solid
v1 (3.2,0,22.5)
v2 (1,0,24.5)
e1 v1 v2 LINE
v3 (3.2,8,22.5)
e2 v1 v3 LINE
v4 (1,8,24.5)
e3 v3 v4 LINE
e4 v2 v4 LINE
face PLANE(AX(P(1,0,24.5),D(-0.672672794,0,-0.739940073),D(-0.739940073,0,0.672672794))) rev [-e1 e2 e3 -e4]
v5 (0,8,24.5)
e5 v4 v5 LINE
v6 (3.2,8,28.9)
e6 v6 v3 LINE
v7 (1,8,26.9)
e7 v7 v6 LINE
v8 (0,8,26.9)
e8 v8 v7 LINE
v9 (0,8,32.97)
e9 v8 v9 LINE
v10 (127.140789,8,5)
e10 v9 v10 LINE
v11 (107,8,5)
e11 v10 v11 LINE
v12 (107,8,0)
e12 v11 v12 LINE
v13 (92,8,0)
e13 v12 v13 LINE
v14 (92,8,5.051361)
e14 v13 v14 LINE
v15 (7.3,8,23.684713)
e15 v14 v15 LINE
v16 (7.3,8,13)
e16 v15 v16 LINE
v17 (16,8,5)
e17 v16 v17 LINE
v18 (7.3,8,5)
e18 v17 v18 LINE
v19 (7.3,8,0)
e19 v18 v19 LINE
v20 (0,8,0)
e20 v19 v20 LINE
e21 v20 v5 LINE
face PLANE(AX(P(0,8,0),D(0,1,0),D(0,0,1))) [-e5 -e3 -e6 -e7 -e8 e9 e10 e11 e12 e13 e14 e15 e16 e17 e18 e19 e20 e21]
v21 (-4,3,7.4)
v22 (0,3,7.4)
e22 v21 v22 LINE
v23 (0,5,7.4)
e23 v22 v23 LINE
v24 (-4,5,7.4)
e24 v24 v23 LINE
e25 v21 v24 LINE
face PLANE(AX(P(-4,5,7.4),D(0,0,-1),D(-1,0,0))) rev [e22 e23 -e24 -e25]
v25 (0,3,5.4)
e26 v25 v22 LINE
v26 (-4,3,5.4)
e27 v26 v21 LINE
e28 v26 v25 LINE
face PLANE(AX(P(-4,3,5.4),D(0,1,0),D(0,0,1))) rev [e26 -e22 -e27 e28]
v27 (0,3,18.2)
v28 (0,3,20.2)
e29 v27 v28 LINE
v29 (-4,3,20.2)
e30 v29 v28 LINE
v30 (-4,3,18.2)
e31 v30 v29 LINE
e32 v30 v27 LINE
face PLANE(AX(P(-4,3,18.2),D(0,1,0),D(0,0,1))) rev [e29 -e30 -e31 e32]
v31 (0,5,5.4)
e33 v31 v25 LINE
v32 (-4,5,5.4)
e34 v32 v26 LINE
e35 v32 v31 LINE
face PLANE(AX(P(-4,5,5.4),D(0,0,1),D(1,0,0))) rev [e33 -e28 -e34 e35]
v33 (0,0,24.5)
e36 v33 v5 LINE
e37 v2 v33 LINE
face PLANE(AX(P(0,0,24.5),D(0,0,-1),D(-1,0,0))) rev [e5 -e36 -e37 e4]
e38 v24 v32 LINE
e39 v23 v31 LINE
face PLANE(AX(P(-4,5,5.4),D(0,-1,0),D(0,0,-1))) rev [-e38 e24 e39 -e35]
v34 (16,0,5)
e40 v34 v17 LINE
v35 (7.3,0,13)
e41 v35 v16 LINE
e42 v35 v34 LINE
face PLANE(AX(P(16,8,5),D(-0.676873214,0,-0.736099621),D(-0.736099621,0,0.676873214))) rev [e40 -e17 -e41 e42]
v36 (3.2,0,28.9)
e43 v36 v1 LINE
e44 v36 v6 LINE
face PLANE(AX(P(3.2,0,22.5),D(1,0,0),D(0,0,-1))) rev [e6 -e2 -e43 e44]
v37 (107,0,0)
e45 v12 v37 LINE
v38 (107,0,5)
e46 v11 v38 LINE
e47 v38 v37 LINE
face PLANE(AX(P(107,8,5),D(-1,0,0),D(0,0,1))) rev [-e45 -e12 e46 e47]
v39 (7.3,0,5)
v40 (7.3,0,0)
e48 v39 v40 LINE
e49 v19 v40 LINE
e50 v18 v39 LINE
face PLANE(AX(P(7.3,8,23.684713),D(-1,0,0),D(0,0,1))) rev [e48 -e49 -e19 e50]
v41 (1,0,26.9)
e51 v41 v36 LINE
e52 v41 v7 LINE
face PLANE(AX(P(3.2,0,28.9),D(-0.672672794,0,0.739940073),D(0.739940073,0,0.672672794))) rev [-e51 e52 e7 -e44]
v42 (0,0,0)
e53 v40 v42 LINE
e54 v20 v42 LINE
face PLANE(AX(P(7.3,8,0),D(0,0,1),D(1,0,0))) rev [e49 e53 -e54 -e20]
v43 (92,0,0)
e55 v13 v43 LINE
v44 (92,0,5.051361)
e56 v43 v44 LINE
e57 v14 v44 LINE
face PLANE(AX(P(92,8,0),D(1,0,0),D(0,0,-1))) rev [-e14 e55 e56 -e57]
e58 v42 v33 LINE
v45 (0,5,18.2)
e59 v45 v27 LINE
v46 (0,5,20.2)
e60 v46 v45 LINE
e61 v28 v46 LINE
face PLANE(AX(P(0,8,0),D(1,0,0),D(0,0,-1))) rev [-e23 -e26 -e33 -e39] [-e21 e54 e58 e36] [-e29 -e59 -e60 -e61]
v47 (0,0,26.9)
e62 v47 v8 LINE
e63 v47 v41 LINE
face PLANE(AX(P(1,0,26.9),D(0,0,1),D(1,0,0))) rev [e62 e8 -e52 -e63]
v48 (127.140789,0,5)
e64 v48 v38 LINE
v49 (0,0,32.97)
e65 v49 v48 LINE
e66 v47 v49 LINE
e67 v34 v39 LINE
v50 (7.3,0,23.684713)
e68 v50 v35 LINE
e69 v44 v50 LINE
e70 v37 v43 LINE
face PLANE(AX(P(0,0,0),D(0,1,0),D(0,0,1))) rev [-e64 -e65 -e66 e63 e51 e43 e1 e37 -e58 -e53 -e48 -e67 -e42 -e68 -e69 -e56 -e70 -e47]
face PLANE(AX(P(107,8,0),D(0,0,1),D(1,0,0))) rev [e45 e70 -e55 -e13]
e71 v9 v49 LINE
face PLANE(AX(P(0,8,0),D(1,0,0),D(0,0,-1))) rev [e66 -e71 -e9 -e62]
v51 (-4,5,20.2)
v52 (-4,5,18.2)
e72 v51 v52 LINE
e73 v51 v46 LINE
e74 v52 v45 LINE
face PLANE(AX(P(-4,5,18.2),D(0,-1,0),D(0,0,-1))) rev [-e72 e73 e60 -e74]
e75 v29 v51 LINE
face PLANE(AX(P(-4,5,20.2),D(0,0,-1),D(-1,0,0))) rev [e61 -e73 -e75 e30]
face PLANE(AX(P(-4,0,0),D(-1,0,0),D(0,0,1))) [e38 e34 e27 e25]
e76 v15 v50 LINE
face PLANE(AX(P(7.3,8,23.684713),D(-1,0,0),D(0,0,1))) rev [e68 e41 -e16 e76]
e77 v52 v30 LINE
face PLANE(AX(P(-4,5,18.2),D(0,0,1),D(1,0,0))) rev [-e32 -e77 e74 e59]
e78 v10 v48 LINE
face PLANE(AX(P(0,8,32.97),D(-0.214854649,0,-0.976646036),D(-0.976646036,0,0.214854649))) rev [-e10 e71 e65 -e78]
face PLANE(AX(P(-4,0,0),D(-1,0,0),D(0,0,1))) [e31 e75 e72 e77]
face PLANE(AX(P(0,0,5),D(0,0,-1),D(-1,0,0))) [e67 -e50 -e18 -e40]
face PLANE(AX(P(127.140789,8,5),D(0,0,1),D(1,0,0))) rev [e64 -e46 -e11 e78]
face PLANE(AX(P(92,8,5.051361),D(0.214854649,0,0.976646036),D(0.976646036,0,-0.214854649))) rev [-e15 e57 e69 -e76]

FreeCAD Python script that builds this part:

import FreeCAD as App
import Part
import Sketcher
Q = App.Units.Quantity

doc = App.newDocument("Part")
body = doc.addObject("PartDesign::Body", "Body")

sketch1 = doc.addObject("Sketcher::SketchObject", "Sketch")
body.addObject(sketch1)
sketch1.AttachmentSupport = (doc.XZ_Plane, [""])
sketch1.MapMode = "FlatFace"
sketch1.addGeometry([
    Part.LineSegment(App.Vector(0, 0, 0), App.Vector(0, 33, 0)),
    Part.LineSegment(App.Vector(0, 33, 0), App.Vector(127, 5, 0)),
    Part.LineSegment(App.Vector(127, 5, 0), App.Vector(107, 5, 0)),
    Part.LineSegment(App.Vector(107, 5, 0), App.Vector(107, 0, 0)),
    Part.LineSegment(App.Vector(107, 0, 0), App.Vector(92, 0, 0)),
    Part.LineSegment(App.Vector(92, 0, 0), App.Vector(92, 5, 0)),
    Part.LineSegment(App.Vector(92, 5, 0), App.Vector(7, 24, 0)),
    Part.LineSegment(App.Vector(7, 24, 0), App.Vector(7, 0, 0)),
    Part.LineSegment(App.Vector(7, 0, 0), App.Vector(0, 0, 0)),
], False)
sketch1.addConstraint([
    Sketcher.Constraint("Coincident", 0, 2, 1, 1),
    Sketcher.Constraint("Coincident", 1, 2, 2, 1),
    Sketcher.Constraint("Coincident", 2, 2, 3, 1),
    Sketcher.Constraint("Coincident", 3, 2, 4, 1),
    Sketcher.Constraint("Coincident", 4, 2, 5, 1),
    Sketcher.Constraint("Coincident", 5, 2, 6, 1),
    Sketcher.Constraint("Coincident", 6, 2, 7, 1),
    Sketcher.Constraint("Coincident", 7, 2, 8, 1),
    Sketcher.Constraint("Coincident", 8, 2, 0, 1),
    Sketcher.Constraint("Vertical", 0),
    Sketcher.Constraint("Horizontal", 2),
    Sketcher.Constraint("Vertical", 3),
    Sketcher.Constraint("Horizontal", 4),
    Sketcher.Constraint("Vertical", 5),
    Sketcher.Constraint("Vertical", 7),
    Sketcher.Constraint("Horizontal", 8),
    Sketcher.Constraint("Coincident", 8, 2, -1, 1),
    Sketcher.Constraint("PointOnObject", 3, 2, -1),
    Sketcher.Constraint("Parallel", 1, 6),
    Sketcher.Constraint("DistanceX", 4, 2, 4, 1, Q("15 mm")),
    Sketcher.Constraint("DistanceY", 3, 2, 3, 1, Q("5 mm")),
    Sketcher.Constraint("DistanceX", 8, 2, 8, 1, Q("7.3 mm")),
    Sketcher.Constraint("DistanceX", -1, 1, 2, 2, Q("107 mm")),
    Sketcher.Constraint("DistanceY", 0, 1, 0, 2, Q("32.97 mm")),
    Sketcher.Constraint("DistanceX", 2, 2, 2, 1, Q("20.140789 mm")),
    Sketcher.Constraint("DistanceY", 5, 1, 5, 2, Q("5.051361 mm")),
])
pad1 = doc.addObject("PartDesign::Pad", "Pad")
body.addObject(pad1)
pad1.Profile = sketch1
pad1.Length = 8
pad1.Reversed = True

sketch2 = doc.addObject("Sketcher::SketchObject", "Sketch001")
body.addObject(sketch2)
sketch2.AttachmentSupport = (doc.XZ_Plane, [""])
sketch2.MapMode = "FlatFace"
sketch2.AttachmentOffset = App.Placement(App.Vector(0, 0, -8), App.Rotation())
sketch2.addGeometry([
    Part.LineSegment(App.Vector(1, 24.5, 0), App.Vector(0, 24.5, 0)),
    Part.LineSegment(App.Vector(0, 24.5, 0), App.Vector(0, 26.9, 0)),
    Part.LineSegment(App.Vector(0, 26.9, 0), App.Vector(1, 26.9, 0)),
    Part.LineSegment(App.Vector(1, 26.9, 0), App.Vector(3.2, 28.9, 0)),
    Part.LineSegment(App.Vector(3.2, 28.9, 0), App.Vector(3.2, 22.5, 0)),
    Part.LineSegment(App.Vector(3.2, 22.5, 0), App.Vector(1, 24.5, 0)),
], False)
sketch2.addConstraint([
    Sketcher.Constraint("Coincident", 0, 2, 1, 1),
    Sketcher.Constraint("Coincident", 1, 2, 2, 1),
    Sketcher.Constraint("Coincident", 2, 2, 3, 1),
    Sketcher.Constraint("Coincident", 3, 2, 4, 1),
    Sketcher.Constraint("Coincident", 4, 2, 5, 1),
    Sketcher.Constraint("Coincident", 5, 2, 0, 1),
    Sketcher.Constraint("Horizontal", 0),
    Sketcher.Constraint("Vertical", 1),
    Sketcher.Constraint("Horizontal", 2),
    Sketcher.Constraint("Vertical", 4),
    Sketcher.Constraint("PointOnObject", 0, 2, -2),
    Sketcher.Constraint("Vertical", 2, 2, 5, 2),
    Sketcher.Constraint("Equal", 3, 5),
    Sketcher.Constraint("DistanceX", 0, 2, 0, 1, Q("1 mm")),
    Sketcher.Constraint("DistanceY", 1, 1, 1, 2, Q("2.4 mm")),
    Sketcher.Constraint("DistanceY", 4, 2, 4, 1, Q("6.4 mm")),
    Sketcher.Constraint("DistanceY", -1, 1, 0, 2, Q("24.5 mm")),
    Sketcher.Constraint("DistanceX", -1, 1, 3, 2, Q("3.2 mm")),
])
pocket1 = doc.addObject("PartDesign::Pocket", "Pocket")
body.addObject(pocket1)
pocket1.Profile = sketch2
pocket1.Type = "ThroughAll"
pocket1.Reversed = True

sketch3 = doc.addObject("Sketcher::SketchObject", "Sketch002")
body.addObject(sketch3)
sketch3.AttachmentSupport = (doc.YZ_Plane, [""])
sketch3.MapMode = "FlatFace"
sketch3.addGeometry([
    Part.LineSegment(App.Vector(5, 5.4, 0), App.Vector(3, 5.4, 0)),
    Part.LineSegment(App.Vector(3, 5.4, 0), App.Vector(3, 7.4, 0)),
    Part.LineSegment(App.Vector(3, 7.4, 0), App.Vector(5, 7.4, 0)),
    Part.LineSegment(App.Vector(5, 7.4, 0), App.Vector(5, 5.4, 0)),
    Part.LineSegment(App.Vector(5, 18.2, 0), App.Vector(3, 18.2, 0)),
    Part.LineSegment(App.Vector(3, 18.2, 0), App.Vector(3, 20.2, 0)),
    Part.LineSegment(App.Vector(3, 20.2, 0), App.Vector(5, 20.2, 0)),
    Part.LineSegment(App.Vector(5, 20.2, 0), App.Vector(5, 18.2, 0)),
], False)
sketch3.addConstraint([
    Sketcher.Constraint("Coincident", 0, 2, 1, 1),
    Sketcher.Constraint("Coincident", 1, 2, 2, 1),
    Sketcher.Constraint("Coincident", 2, 2, 3, 1),
    Sketcher.Constraint("Coincident", 3, 2, 0, 1),
    Sketcher.Constraint("Coincident", 4, 2, 5, 1),
    Sketcher.Constraint("Coincident", 5, 2, 6, 1),
    Sketcher.Constraint("Coincident", 6, 2, 7, 1),
    Sketcher.Constraint("Coincident", 7, 2, 4, 1),
    Sketcher.Constraint("Horizontal", 0),
    Sketcher.Constraint("Vertical", 1),
    Sketcher.Constraint("Horizontal", 2),
    Sketcher.Constraint("Vertical", 3),
    Sketcher.Constraint("Horizontal", 4),
    Sketcher.Constraint("Vertical", 5),
    Sketcher.Constraint("Horizontal", 6),
    Sketcher.Constraint("Vertical", 7),
    Sketcher.Constraint("Vertical", 1, 2, 4, 2),
    Sketcher.Constraint("Vertical", 3, 2, 6, 2),
    Sketcher.Constraint("Equal", 6, 1),
    Sketcher.Constraint("Equal", 3, 5),
    Sketcher.Constraint("DistanceX", 0, 2, 0, 1, Q("2 mm")),
    Sketcher.Constraint("DistanceX", -1, 1, 0, 2, Q("3 mm")),
    Sketcher.Constraint("DistanceY", -1, 1, 0, 2, Q("5.4 mm")),
    Sketcher.Constraint("DistanceY", -1, 1, 4, 2, Q("18.2 mm")),
])
pad2 = doc.addObject("PartDesign::Pad", "Pad001")
body.addObject(pad2)
pad2.Profile = sketch3
pad2.Length = 4
pad2.Reversed = True

sketch4 = doc.addObject("Sketcher::SketchObject", "Sketch003")
body.addObject(sketch4)
sketch4.AttachmentSupport = (doc.XZ_Plane, [""])
sketch4.MapMode = "FlatFace"
sketch4.AttachmentOffset = App.Placement(App.Vector(0, 0, -8), App.Rotation())
sketch4.addGeometry([
    Part.LineSegment(App.Vector(0, 5, 0), App.Vector(0, 13, 0)),
    Part.LineSegment(App.Vector(0, 13, 0), App.Vector(16, 13, 0)),
    Part.LineSegment(App.Vector(16, 13, 0), App.Vector(16, 5, 0)),
    Part.LineSegment(App.Vector(16, 5, 0), App.Vector(0, 5, 0)),
], False)
sketch4.addConstraint([
    Sketcher.Constraint("Coincident", 0, 2, 1, 1),
    Sketcher.Constraint("Coincident", 1, 2, 2, 1),
    Sketcher.Constraint("Coincident", 2, 2, 3, 1),
    Sketcher.Constraint("Coincident", 3, 2, 0, 1),
    Sketcher.Constraint("Vertical", 0),
    Sketcher.Constraint("Horizontal", 1),
    Sketcher.Constraint("Vertical", 2),
    Sketcher.Constraint("Horizontal", 3),
    Sketcher.Constraint("PointOnObject", 0, 2, -2),
    Sketcher.Constraint("DistanceX", 1, 1, 1, 2, Q("16 mm")),
    Sketcher.Constraint("DistanceY", 0, 1, 0, 2, Q("8 mm")),
    Sketcher.Constraint("DistanceY", -1, 1, 0, 2, Q("13 mm")),
])
pad3 = doc.addObject("PartDesign::Pad", "Pad002")
body.addObject(pad3)
pad3.Profile = sketch4
pad3.Length = 8

sketch5 = doc.addObject("Sketcher::SketchObject", "Sketch004")
body.addObject(sketch5)
sketch5.AttachmentSupport = (doc.XZ_Plane, [""])
sketch5.MapMode = "FlatFace"
sketch5.addGeometry([
    Part.LineSegment(App.Vector(16, 13, 0), App.Vector(7, 13, 0)),
    Part.LineSegment(App.Vector(7, 13, 0), App.Vector(16, 5, 0)),
    Part.LineSegment(App.Vector(16, 5, 0), App.Vector(16, 13, 0)),
], False)
sketch5.addConstraint([
    Sketcher.Constraint("Coincident", 0, 2, 1, 1),
    Sketcher.Constraint("Coincident", 1, 2, 2, 1),
    Sketcher.Constraint("Coincident", 2, 2, 0, 1),
    Sketcher.Constraint("Horizontal", 0),
    Sketcher.Constraint("Vertical", 2),
    Sketcher.Constraint("DistanceY", 2, 1, 2, 2, Q("8 mm")),
    Sketcher.Constraint("DistanceX", 0, 2, 0, 1, Q("8.7 mm")),
    Sketcher.Constraint("DistanceY", -1, 1, 0, 2, Q("13 mm")),
    Sketcher.Constraint("DistanceX", -1, 1, 1, 2, Q("16 mm")),
])
pocket2 = doc.addObject("PartDesign::Pocket", "Pocket001")
body.addObject(pocket2)
pocket2.Profile = sketch5
pocket2.Type = "ThroughAll"

doc.recompute()
